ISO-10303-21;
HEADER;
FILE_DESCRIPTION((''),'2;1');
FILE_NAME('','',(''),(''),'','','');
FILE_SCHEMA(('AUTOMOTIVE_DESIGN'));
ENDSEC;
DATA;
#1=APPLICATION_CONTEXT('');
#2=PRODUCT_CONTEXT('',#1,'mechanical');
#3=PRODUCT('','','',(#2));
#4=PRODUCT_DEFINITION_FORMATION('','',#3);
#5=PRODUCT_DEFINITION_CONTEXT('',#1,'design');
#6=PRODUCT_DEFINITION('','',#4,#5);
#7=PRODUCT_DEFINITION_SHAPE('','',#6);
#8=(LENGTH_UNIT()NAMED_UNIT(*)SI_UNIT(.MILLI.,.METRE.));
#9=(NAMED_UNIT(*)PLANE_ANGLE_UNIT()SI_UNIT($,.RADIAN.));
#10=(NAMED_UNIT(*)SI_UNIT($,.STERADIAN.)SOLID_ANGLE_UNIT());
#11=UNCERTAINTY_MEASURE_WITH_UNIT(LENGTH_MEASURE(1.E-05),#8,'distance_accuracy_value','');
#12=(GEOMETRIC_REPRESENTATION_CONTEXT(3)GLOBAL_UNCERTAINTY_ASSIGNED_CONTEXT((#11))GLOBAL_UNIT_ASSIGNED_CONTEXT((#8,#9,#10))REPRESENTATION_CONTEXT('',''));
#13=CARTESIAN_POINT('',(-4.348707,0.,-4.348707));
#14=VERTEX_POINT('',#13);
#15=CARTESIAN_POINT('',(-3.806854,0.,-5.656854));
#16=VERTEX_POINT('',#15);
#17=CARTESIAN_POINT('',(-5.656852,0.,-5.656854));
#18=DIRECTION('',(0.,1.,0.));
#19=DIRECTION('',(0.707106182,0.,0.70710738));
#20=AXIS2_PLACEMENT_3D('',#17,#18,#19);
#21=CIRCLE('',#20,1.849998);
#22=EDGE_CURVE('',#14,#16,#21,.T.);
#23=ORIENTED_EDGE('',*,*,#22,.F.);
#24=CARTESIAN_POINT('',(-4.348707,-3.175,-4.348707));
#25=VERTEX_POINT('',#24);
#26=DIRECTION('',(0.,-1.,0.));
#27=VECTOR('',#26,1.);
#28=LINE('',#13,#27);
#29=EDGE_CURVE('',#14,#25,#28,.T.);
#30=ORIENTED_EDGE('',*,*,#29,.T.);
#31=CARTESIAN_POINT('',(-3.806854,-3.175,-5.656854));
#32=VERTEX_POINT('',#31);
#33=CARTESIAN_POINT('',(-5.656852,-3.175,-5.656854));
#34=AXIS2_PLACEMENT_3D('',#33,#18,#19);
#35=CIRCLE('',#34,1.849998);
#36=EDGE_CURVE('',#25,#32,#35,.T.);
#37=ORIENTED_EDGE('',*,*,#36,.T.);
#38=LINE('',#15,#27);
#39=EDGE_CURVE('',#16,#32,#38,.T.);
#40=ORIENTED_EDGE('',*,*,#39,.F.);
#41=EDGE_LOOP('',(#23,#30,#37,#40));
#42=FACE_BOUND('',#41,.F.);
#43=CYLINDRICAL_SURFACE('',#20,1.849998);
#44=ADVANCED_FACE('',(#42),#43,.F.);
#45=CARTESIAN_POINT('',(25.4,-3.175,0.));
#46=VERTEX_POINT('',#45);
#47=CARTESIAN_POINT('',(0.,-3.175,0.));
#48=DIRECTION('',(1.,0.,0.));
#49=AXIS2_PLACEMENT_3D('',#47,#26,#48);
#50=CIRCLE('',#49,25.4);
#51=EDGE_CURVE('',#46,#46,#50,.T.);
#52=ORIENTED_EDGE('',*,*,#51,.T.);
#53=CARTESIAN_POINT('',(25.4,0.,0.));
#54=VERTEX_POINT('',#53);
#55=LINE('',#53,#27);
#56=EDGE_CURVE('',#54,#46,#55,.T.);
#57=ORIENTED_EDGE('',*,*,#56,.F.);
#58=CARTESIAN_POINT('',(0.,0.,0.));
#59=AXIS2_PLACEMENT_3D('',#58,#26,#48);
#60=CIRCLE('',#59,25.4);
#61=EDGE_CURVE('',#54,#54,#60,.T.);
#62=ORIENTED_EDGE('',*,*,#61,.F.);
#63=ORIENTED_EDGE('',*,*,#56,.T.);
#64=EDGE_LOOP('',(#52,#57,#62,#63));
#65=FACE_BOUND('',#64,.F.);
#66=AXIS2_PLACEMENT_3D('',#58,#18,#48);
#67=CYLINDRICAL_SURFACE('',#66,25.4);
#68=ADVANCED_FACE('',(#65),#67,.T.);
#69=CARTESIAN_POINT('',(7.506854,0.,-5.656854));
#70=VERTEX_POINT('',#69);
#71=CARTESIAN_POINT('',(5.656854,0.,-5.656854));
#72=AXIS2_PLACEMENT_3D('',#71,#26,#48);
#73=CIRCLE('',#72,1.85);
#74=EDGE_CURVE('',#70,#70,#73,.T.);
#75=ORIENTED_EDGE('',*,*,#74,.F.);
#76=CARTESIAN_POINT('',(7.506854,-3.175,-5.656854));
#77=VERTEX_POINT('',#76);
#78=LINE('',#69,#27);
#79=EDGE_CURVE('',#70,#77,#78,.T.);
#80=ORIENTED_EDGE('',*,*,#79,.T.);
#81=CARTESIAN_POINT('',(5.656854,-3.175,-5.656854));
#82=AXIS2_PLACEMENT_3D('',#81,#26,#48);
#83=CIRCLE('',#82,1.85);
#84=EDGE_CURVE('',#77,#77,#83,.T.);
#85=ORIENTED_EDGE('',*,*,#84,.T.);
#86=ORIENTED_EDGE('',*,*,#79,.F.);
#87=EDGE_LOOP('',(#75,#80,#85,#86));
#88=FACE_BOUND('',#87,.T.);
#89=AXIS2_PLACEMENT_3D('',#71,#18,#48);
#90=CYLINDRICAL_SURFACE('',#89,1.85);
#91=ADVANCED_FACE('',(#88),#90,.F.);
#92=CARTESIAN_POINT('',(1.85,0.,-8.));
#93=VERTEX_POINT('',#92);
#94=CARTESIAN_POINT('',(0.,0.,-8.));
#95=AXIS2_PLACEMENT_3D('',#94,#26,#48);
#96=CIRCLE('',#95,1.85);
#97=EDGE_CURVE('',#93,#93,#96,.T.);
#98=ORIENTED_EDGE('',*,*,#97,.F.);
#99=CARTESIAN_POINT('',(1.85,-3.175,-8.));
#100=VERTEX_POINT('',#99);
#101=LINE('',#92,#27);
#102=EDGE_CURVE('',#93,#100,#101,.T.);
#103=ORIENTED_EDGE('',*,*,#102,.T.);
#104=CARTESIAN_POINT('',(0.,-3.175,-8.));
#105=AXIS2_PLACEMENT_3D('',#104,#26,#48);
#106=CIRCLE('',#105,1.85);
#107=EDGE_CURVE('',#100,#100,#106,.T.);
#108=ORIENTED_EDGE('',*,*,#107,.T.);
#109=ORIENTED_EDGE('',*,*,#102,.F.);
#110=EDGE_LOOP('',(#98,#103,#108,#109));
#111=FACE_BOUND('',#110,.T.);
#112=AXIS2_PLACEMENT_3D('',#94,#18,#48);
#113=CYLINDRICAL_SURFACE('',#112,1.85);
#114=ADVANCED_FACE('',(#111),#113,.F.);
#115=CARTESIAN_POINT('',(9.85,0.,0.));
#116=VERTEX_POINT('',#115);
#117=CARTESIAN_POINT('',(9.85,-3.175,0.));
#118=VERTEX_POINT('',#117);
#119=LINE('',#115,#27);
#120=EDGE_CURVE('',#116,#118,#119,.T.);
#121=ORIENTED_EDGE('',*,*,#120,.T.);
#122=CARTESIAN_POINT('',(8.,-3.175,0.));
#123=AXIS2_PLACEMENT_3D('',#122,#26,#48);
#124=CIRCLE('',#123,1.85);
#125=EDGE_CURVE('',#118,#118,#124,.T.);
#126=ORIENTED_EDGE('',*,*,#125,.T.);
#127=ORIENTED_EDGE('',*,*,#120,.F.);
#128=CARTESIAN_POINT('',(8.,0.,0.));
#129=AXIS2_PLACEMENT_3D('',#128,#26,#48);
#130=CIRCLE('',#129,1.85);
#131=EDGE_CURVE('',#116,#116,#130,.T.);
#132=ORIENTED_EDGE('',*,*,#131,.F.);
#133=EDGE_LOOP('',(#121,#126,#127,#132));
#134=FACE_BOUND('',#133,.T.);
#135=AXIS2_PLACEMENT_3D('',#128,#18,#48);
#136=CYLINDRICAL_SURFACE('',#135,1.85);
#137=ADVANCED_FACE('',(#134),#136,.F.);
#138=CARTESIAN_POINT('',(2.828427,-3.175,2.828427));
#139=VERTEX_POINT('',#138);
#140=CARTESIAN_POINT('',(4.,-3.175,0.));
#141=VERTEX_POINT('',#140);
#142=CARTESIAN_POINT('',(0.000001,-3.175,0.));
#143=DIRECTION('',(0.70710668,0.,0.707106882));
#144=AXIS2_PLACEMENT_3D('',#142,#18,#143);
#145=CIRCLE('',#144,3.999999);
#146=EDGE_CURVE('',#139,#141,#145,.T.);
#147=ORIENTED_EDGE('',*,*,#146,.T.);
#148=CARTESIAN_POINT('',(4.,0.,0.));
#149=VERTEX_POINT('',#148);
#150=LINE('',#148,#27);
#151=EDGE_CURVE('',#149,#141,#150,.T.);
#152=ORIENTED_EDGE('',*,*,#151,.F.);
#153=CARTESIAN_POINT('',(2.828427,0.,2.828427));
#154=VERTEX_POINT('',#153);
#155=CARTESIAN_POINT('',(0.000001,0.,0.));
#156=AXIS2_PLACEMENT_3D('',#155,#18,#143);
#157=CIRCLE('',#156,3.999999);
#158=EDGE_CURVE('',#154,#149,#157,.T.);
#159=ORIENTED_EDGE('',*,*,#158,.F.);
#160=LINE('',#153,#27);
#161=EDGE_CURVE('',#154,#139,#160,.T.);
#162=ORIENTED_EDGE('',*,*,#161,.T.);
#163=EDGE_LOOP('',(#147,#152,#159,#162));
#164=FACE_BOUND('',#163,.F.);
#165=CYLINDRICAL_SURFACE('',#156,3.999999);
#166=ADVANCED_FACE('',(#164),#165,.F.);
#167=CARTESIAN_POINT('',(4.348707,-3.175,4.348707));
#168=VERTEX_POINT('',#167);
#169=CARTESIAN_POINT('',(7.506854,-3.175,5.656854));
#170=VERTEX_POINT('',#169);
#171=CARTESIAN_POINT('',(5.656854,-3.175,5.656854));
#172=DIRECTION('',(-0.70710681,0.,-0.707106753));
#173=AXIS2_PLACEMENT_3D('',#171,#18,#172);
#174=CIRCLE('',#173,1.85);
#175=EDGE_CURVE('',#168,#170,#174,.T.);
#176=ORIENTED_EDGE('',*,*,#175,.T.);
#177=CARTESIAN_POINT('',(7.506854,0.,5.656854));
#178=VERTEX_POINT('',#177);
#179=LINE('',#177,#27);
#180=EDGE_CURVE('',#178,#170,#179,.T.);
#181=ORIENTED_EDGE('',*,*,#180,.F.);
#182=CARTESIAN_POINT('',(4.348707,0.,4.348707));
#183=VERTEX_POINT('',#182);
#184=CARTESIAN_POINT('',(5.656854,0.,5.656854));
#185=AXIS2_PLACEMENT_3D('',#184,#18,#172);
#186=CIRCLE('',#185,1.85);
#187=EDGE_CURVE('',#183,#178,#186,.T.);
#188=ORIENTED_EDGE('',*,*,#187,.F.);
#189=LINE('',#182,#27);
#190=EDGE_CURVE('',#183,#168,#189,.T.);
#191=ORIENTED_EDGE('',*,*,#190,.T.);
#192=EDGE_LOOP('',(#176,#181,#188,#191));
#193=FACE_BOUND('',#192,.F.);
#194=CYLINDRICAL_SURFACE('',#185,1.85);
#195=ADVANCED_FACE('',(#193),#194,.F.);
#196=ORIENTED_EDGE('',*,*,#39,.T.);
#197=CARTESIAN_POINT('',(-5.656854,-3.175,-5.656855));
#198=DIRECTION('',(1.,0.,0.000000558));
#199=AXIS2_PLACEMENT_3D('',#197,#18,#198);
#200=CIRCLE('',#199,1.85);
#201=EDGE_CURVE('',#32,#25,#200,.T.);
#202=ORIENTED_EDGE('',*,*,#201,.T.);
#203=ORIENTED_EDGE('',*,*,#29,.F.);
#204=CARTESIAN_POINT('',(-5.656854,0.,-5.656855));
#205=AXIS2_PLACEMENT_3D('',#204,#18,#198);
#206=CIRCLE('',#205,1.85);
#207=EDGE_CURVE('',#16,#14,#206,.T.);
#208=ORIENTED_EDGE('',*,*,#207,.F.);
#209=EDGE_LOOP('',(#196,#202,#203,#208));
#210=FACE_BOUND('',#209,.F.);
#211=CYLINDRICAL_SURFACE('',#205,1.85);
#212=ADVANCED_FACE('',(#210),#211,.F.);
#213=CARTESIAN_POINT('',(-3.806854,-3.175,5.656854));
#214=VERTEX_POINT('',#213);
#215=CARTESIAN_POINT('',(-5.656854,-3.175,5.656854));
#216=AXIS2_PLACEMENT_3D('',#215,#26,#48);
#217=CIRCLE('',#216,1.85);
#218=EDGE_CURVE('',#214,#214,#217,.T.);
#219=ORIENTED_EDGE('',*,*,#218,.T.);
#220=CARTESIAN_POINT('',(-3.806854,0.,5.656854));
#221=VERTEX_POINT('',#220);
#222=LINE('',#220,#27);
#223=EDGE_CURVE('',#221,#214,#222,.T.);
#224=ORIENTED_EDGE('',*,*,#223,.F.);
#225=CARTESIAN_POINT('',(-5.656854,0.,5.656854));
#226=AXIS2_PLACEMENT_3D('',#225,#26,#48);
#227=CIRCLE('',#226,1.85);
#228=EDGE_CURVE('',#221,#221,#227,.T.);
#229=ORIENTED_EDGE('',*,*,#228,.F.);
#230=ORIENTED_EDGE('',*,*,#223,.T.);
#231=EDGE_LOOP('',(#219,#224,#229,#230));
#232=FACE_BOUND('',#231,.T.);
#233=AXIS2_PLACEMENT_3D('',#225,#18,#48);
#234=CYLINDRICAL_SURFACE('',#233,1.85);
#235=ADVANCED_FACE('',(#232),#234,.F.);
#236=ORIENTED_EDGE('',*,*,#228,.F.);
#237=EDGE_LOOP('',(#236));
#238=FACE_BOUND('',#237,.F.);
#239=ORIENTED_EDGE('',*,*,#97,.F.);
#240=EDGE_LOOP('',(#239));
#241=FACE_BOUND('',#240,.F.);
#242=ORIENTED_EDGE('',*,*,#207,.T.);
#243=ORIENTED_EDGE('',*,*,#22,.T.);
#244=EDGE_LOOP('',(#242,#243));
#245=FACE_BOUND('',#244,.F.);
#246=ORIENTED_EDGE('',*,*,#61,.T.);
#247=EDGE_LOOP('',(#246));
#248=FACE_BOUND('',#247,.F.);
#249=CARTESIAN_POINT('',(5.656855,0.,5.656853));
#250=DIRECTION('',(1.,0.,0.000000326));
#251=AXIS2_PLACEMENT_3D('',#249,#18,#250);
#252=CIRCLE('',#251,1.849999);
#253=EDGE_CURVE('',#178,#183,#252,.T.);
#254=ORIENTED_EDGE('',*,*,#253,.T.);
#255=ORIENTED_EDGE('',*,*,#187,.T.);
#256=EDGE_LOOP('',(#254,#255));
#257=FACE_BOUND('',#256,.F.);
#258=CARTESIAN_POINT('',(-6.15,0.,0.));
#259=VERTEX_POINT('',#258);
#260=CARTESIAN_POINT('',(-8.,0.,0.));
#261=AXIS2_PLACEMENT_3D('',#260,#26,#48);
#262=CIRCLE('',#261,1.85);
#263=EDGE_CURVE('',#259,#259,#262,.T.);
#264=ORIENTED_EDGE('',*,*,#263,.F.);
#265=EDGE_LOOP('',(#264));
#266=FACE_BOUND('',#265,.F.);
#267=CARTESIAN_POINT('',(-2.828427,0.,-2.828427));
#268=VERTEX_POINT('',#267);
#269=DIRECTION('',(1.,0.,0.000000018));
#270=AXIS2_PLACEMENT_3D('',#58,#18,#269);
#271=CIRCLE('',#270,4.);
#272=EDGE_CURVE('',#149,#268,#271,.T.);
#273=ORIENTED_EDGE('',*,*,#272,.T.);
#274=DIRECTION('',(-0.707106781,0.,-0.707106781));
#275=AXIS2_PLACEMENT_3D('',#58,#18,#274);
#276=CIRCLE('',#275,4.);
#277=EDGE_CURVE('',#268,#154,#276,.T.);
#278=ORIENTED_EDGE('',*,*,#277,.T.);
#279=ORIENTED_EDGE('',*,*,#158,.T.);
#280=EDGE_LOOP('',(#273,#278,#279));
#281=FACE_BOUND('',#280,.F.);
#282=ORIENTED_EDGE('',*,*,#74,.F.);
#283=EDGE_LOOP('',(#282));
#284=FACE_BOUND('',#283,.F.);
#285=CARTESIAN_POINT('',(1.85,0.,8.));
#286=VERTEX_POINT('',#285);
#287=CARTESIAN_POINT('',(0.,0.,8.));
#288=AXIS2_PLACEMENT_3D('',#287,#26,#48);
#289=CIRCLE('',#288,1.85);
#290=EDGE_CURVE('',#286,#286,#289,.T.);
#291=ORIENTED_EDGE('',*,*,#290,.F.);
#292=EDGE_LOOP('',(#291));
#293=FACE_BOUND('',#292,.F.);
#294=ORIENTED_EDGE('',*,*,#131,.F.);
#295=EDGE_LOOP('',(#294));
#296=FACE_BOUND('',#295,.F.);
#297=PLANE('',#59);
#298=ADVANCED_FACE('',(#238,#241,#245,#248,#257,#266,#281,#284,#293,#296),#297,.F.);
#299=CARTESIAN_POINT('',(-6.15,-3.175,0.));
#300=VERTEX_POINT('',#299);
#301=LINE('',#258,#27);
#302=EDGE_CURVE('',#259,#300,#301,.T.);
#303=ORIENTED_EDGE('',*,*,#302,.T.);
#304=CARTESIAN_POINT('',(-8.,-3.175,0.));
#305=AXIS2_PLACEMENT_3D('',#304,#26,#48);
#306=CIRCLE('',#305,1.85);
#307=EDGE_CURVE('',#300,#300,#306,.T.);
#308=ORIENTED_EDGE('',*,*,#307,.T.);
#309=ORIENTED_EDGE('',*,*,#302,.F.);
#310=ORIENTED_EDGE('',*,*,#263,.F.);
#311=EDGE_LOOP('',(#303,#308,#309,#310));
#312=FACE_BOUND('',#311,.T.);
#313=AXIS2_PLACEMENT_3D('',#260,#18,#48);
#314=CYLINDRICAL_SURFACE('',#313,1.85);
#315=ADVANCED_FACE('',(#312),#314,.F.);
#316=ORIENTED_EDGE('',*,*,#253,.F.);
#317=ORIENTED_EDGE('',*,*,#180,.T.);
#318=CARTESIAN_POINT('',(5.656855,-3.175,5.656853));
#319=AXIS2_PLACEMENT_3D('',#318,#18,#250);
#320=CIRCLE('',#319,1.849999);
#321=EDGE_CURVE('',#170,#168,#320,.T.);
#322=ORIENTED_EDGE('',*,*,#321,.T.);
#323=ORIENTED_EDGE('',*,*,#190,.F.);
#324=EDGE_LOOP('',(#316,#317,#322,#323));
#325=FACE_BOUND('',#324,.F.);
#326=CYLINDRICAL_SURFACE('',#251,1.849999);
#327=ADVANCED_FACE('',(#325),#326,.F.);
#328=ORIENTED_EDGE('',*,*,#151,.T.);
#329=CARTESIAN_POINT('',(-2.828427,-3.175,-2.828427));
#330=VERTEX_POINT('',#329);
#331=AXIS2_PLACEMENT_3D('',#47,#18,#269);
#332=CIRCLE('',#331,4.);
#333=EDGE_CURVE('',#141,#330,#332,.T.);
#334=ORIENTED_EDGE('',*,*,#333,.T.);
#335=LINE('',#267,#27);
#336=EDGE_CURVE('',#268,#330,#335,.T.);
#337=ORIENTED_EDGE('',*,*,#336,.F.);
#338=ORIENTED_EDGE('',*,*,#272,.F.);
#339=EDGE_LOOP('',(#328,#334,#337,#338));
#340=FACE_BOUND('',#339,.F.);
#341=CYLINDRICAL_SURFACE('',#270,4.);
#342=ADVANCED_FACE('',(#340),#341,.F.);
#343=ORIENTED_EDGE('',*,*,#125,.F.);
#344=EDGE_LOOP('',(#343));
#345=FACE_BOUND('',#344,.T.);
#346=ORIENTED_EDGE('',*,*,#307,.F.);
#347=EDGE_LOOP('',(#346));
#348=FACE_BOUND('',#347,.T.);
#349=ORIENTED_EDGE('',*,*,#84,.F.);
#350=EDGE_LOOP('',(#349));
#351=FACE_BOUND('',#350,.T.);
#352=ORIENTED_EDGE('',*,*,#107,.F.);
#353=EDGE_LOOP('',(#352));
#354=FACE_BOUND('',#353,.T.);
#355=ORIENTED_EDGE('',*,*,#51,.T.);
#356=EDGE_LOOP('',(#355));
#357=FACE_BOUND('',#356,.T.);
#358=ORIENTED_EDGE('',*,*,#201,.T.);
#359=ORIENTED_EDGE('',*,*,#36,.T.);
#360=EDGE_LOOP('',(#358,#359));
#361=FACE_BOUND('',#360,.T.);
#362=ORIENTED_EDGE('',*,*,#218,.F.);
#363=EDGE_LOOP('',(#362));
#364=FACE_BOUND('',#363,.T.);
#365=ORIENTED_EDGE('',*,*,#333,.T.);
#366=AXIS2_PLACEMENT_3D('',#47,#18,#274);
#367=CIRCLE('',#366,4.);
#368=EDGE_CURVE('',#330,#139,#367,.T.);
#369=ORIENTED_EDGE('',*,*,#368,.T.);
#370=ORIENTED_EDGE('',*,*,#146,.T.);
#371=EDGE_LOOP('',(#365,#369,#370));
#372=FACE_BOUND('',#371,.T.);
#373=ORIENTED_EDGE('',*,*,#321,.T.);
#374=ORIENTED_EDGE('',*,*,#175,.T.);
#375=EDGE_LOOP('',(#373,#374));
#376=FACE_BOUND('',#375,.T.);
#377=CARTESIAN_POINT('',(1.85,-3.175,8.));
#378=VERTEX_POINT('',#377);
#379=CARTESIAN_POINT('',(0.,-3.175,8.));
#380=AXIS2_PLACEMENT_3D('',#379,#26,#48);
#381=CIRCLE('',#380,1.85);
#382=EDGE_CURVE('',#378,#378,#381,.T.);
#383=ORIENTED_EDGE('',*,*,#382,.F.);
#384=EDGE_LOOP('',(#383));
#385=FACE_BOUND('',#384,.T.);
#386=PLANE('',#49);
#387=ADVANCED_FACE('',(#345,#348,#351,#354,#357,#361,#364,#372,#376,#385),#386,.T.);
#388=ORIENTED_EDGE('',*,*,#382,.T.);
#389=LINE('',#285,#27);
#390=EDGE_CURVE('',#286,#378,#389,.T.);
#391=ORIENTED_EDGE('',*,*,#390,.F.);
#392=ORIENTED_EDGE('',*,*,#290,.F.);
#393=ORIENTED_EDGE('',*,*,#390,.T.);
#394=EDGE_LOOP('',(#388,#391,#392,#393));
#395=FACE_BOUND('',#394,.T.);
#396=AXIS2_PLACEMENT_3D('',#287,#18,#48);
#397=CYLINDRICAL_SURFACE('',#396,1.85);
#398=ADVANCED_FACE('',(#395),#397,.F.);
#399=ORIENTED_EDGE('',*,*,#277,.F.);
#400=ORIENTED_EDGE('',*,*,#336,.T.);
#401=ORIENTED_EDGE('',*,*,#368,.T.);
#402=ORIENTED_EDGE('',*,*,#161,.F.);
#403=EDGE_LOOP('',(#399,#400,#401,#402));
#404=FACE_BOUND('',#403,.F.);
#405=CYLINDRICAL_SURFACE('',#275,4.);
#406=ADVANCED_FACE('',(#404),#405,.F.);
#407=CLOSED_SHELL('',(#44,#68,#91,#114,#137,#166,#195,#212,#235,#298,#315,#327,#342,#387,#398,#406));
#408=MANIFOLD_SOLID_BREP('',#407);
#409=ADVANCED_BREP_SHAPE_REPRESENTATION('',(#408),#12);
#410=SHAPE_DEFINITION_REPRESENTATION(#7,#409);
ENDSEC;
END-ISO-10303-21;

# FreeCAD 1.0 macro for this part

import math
import FreeCAD as App
import Part
import Sketcher
from FreeCAD import Vector

doc = App.newDocument("Part")
body = doc.addObject("PartDesign::Body", "Body")

# Sketch on XZ plane
sketch1 = body.newObject("Sketcher::SketchObject", "Sketch")
sketch1.AttachmentSupport = (doc.getObject("XZ_Plane"), [""])
sketch1.MapMode = "FlatFace"
sketch1.addGeometry(Part.Circle(Vector(0, 0, 0), Vector(0, 0, 1), 25.4), False)
sketch1.addGeometry(Part.ArcOfCircle(Part.Circle(Vector(-5.656852, -5.656854, 0), Vector(0, 0, 1), 1.849998), math.radians(0.000009), math.radians(45.000049)), False)
sketch1.addGeometry(Part.ArcOfCircle(Part.Circle(Vector(-5.656854, -5.656855, 0), Vector(0, 0, 1), 1.85), math.radians(45.000026), math.radians(360.000032)), False)
sketch1.addGeometry(Part.Circle(Vector(0, -8, 0), Vector(0, 0, 1), 1.85), False)
sketch1.addGeometry(Part.Circle(Vector(5.656854, -5.656854, 0), Vector(0, 0, 1), 1.85), False)
sketch1.addGeometry(Part.ArcOfCircle(Part.Circle(Vector(0, 0, 0), Vector(0, 0, 1), 4), math.radians(45), math.radians(225)), False)
sketch1.addGeometry(Part.ArcOfCircle(Part.Circle(Vector(0.000001, 0, 0), Vector(0, 0, 1), 3.999999), math.radians(-0.000002), math.radians(45.000008)), False)
sketch1.addGeometry(Part.ArcOfCircle(Part.Circle(Vector(0, 0, 0), Vector(0, 0, 1), 4), math.radians(-135.000002), math.radians(0.000001)), False)
sketch1.addGeometry(Part.Circle(Vector(-8, 0, 0), Vector(0, 0, 1), 1.85), False)
sketch1.addGeometry(Part.Circle(Vector(-5.656854, 5.656854, 0), Vector(0, 0, 1), 1.85), False)
sketch1.addGeometry(Part.Circle(Vector(8, 0, 0), Vector(0, 0, 1), 1.85), False)
sketch1.addGeometry(Part.Circle(Vector(0, 8, 0), Vector(0, 0, 1), 1.85), False)
sketch1.addGeometry(Part.ArcOfCircle(Part.Circle(Vector(5.656854, 5.656854, 0), Vector(0, 0, 1), 1.85), math.radians(-0.000008), math.radians(224.999998)), False)
sketch1.addGeometry(Part.ArcOfCircle(Part.Circle(Vector(5.656855, 5.656853, 0), Vector(0, 0, 1), 1.849999), math.radians(-135.000029), math.radians(0.000019)), False)
sketch1.addConstraint(Sketcher.Constraint("Tangent", 1, 1, 2, 2))
sketch1.addConstraint(Sketcher.Constraint("Coincident", 2, 1, 1, 2))
sketch1.addConstraint(Sketcher.Constraint("Tangent", 5, 1, 6, 2))
sketch1.addConstraint(Sketcher.Constraint("Tangent", 6, 1, 7, 2))
sketch1.addConstraint(Sketcher.Constraint("Tangent", 7, 1, 5, 2))
sketch1.addConstraint(Sketcher.Constraint("Tangent", 12, 1, 13, 2))
sketch1.addConstraint(Sketcher.Constraint("Coincident", 13, 1, 12, 2))
sketch1.addConstraint(Sketcher.Constraint("Coincident", 0, 3, -1, 1))
sketch1.addConstraint(Sketcher.Constraint("Coincident", 5, 3, -1, 1))
sketch1.addConstraint(Sketcher.Constraint("Equal", 2, 3))
sketch1.addConstraint(Sketcher.Constraint("Equal", 3, 4))
sketch1.addConstraint(Sketcher.Constraint("Equal", 4, 8))
sketch1.addConstraint(Sketcher.Constraint("Equal", 8, 9))
sketch1.addConstraint(Sketcher.Constraint("Equal", 9, 10))
sketch1.addConstraint(Sketcher.Constraint("Equal", 10, 11))
sketch1.addConstraint(Sketcher.Constraint("Equal", 11, 12))
sketch1.addConstraint(Sketcher.Constraint("Symmetric", 4, 3, 9, 3, -1, 1))
sketch1.addConstraint(Sketcher.Constraint("Symmetric", 8, 3, 10, 3, -1, 1))
sketch1.addConstraint(Sketcher.Constraint("Symmetric", 3, 3, 11, 3, -1, 1))
sketch1.addConstraint(Sketcher.Constraint("Symmetric", 1, 3, 12, 3, -1, 1))
sketch1.addConstraint(Sketcher.Constraint("Symmetric", 1, 3, 4, 3, -2))
sketch1.addConstraint(Sketcher.Constraint("PointOnObject", 3, 3, -2))
sketch1.addConstraint(Sketcher.Constraint("PointOnObject", 8, 3, -1))
sketch1.addConstraint(Sketcher.Constraint("PointOnObject", 6, 1, -1))
sketch1.addConstraint(Sketcher.Constraint("Horizontal", 4, 3, 1, 1))
sketch1.addConstraint(Sketcher.Constraint("Horizontal", 13, 3, 12, 1))
sketch1.addConstraint(Sketcher.Constraint("Radius", 5, 4.0))
sketch1.addConstraint(Sketcher.Constraint("Diameter", 0, 50.8))
sketch1.addConstraint(Sketcher.Constraint("Diameter", 3, 3.7))
sketch1.addConstraint(Sketcher.Constraint("DistanceY", 3, 3, -1, 1, 8.0))
sketch1.addConstraint(Sketcher.Constraint("DistanceX", 8, 3, -1, 1, 8.0))
sketch1.addConstraint(Sketcher.Constraint("DistanceY", 2, 3, 2, 1, 1.308148))
sketch1.addConstraint(Sketcher.Constraint("DistanceX", 2, 1, 7, 1, 1.52028))
sketch1.addConstraint(Sketcher.Constraint("DistanceY", 2, 1, 7, 1, 1.52028))
sketch1.addConstraint(Sketcher.Constraint("DistanceX", 5, 1, 13, 1, 1.52028))
sketch1.addConstraint(Sketcher.Constraint("DistanceX", 1, 3, -1, 1, 5.656852))
sketch1.addConstraint(Sketcher.Constraint("DistanceX", -1, 1, 5, 1, 2.828427))
pad1 = body.newObject("PartDesign::Pad", "Pad")
pad1.Profile = sketch1
pad1.Length = 3.175

doc.recompute()
